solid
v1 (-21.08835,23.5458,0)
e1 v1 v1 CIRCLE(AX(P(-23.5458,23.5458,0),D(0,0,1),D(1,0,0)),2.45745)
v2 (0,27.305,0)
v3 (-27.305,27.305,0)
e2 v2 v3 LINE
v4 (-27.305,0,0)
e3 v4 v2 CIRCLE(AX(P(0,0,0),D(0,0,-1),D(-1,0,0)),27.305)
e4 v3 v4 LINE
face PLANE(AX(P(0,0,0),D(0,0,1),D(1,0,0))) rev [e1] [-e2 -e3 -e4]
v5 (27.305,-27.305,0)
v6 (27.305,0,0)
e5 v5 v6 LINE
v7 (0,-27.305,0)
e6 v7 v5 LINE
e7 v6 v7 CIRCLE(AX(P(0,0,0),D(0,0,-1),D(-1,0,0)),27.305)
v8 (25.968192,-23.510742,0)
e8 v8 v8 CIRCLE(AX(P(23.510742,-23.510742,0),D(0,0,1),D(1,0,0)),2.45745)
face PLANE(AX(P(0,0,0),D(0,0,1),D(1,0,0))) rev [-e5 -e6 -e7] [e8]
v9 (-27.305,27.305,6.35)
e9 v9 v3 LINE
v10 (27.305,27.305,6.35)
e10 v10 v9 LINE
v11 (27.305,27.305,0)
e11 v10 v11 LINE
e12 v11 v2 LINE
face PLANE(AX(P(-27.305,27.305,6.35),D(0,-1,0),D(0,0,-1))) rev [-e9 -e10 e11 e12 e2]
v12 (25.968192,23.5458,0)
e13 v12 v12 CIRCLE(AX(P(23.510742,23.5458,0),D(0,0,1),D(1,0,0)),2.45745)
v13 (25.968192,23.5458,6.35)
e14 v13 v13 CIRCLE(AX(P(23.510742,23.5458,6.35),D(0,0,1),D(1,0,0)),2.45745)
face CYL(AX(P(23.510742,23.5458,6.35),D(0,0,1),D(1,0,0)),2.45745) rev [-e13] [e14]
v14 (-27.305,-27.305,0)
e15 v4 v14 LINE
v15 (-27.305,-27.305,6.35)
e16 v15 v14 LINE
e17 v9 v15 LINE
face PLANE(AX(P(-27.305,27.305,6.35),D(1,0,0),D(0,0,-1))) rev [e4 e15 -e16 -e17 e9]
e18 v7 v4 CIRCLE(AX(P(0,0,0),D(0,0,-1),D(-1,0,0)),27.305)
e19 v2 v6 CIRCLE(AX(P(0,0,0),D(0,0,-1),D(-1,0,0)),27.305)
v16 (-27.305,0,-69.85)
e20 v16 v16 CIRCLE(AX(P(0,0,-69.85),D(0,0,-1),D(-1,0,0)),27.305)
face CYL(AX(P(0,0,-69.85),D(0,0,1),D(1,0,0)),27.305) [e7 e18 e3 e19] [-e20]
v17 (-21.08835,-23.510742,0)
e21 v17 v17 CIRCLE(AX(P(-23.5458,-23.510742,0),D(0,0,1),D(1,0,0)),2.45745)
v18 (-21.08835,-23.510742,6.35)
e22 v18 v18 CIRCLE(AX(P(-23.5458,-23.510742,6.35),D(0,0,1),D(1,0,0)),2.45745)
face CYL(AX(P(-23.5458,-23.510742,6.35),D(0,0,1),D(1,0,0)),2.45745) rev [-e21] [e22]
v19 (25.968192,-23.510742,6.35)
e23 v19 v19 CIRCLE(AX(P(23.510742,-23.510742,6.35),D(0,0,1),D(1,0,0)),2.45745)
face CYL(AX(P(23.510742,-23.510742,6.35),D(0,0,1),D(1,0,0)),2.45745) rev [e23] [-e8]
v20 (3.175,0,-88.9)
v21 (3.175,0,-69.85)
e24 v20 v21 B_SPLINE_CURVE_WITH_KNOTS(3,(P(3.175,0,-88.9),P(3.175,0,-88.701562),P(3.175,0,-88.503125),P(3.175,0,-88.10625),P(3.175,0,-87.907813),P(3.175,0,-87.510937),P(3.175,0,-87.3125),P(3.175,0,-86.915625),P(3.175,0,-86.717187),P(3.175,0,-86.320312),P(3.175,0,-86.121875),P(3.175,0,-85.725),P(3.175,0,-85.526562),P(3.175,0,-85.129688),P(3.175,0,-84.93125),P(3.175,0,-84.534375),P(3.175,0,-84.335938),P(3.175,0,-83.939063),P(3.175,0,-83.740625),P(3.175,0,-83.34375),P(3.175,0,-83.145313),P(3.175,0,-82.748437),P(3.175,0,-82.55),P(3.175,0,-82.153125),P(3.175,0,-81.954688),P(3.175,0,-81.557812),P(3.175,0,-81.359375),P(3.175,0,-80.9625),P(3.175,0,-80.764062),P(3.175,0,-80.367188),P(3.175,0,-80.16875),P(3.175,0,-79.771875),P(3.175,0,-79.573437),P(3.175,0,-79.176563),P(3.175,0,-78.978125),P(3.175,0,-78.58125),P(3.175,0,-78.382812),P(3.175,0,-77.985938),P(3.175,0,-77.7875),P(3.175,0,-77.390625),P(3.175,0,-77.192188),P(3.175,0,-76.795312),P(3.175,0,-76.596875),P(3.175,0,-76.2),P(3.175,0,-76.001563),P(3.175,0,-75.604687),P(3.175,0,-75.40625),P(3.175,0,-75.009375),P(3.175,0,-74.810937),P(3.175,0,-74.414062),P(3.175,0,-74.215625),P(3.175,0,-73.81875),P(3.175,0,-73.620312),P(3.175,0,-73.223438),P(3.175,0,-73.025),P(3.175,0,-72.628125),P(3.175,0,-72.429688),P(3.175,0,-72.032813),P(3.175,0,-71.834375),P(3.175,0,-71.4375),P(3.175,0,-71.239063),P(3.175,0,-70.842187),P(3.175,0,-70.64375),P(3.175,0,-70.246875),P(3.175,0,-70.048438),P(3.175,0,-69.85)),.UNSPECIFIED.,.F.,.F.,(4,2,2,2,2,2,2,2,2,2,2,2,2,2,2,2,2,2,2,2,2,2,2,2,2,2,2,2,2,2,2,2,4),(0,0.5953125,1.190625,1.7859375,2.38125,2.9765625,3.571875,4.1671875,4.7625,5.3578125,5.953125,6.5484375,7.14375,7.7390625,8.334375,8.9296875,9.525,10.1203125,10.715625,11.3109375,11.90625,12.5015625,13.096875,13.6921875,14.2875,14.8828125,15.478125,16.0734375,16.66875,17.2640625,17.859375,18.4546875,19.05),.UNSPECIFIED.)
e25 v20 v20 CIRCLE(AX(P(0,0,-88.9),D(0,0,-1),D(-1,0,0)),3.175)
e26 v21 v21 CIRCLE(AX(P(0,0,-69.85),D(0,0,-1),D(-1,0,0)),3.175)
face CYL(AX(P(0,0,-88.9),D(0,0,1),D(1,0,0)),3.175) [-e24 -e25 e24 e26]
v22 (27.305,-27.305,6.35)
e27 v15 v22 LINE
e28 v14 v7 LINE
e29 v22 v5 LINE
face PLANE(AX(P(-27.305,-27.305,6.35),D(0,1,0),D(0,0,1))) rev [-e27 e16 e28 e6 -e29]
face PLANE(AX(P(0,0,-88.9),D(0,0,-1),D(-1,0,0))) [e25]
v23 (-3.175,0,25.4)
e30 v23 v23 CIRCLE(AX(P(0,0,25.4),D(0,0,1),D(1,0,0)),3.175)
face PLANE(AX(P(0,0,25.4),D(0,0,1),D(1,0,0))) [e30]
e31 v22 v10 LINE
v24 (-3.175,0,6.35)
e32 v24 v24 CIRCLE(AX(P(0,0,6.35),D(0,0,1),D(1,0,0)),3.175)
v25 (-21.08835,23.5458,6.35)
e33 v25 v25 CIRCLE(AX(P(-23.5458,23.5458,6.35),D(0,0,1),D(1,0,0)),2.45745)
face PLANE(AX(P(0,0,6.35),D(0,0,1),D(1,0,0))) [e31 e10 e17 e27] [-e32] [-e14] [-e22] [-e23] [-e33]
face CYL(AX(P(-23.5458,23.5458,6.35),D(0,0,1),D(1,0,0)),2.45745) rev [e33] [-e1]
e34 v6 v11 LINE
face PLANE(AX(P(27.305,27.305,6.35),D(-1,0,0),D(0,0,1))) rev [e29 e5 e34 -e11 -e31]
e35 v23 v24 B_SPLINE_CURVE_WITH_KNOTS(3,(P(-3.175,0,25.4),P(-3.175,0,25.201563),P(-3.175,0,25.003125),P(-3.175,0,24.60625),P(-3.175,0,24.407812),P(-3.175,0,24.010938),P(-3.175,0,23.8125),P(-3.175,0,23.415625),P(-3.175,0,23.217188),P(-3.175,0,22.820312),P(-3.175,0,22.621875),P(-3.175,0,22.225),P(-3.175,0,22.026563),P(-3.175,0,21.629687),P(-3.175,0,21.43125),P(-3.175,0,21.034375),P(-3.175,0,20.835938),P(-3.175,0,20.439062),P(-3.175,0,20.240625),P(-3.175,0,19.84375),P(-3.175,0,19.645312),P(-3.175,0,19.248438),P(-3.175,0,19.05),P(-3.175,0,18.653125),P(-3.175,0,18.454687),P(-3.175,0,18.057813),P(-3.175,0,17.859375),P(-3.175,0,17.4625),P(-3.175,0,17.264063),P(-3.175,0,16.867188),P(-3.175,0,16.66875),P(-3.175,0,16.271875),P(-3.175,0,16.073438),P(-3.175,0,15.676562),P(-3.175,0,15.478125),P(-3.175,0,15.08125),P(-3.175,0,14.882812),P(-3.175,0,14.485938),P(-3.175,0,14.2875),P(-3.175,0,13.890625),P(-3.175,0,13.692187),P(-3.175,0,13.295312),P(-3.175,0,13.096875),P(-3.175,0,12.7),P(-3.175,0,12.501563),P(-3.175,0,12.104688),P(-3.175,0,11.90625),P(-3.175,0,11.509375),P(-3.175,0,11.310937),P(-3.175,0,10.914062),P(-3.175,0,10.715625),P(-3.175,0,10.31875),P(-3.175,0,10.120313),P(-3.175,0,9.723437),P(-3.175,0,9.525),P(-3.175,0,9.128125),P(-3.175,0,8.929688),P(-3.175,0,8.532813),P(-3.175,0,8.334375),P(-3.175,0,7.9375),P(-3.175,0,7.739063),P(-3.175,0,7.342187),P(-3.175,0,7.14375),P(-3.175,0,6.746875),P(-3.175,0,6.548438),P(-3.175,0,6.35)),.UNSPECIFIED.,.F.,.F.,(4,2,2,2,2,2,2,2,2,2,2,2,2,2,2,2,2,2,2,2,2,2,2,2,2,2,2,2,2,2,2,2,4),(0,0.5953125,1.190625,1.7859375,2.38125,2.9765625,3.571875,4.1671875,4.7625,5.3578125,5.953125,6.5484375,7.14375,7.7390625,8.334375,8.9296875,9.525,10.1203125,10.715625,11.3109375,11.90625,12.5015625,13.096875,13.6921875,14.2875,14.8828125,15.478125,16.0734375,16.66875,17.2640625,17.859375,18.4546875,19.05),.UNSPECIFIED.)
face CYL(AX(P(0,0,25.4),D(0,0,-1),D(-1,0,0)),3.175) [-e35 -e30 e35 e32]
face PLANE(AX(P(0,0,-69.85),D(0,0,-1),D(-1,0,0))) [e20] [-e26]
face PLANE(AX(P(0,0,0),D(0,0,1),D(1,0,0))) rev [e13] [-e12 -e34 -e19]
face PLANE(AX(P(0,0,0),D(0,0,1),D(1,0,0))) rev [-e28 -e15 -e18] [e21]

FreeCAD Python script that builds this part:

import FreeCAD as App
import Part
import Sketcher
from FreeCAD import Vector
Q = App.Units.Quantity


def add_polygon(sketch, points):
    """Adds a closed chain of lines whose ends are joined by coincident constraints."""
    first, n = sketch.GeometryCount, len(points)
    for a, b in zip(points, points[1:] + points[:1]):
        sketch.addGeometry(Part.LineSegment(App.Vector(*a, 0), App.Vector(*b, 0)), False)
    for i in range(n):
        sketch.addConstraint(Sketcher.Constraint("Coincident", first + i, 2, first + (i + 1) % n, 1))

doc = App.newDocument("Part")
body = doc.addObject("PartDesign::Body", "Body")

# Sketch on XY plane
sketch1 = body.newObject("Sketcher::SketchObject", "Sketch")
sketch1.AttachmentSupport = (doc.getObject("XY_Plane"), [""])
sketch1.MapMode = "FlatFace"
add_polygon(sketch1, [(-27.305, 27.305), (-27.305, -27.305), (27.305, -27.305), (27.305, 27.305)])  # lines 0-3
sketch1.addConstraint([
    Sketcher.Constraint("Vertical", 0),
    Sketcher.Constraint("Horizontal", 1),
    Sketcher.Constraint("Vertical", 2),
    Sketcher.Constraint("Horizontal", 3),
    Sketcher.Constraint("Symmetric", 0, 2, 2, 2, -1, 1),
    Sketcher.Constraint("Equal", 3, 0),
    Sketcher.Constraint("DistanceX", 1, 1, 1, 2, Q("2.15 in")),
])
pad1 = body.newObject("PartDesign::Pad", "Pad")
pad1.Profile = sketch1
pad1.Length = Q("0.25 in")

# Sketch on XY plane
sketch2 = body.newObject("Sketcher::SketchObject", "Sketch001")
sketch2.AttachmentSupport = (doc.getObject("XY_Plane"), [""])
sketch2.MapMode = "FlatFace"
sketch2.AttachmentOffset = App.Placement(Vector(0, 0, 0.25 * 25.4), App.Rotation())
sketch2.addGeometry([
    Part.Circle(Vector(-23.5458, 23.5458, 0), Vector(0, 0, 1), 2.45745),
    Part.Circle(Vector(23.510742, 23.5458, 0), Vector(0, 0, 1), 2.45745),
    Part.Circle(Vector(23.510742, -23.510742, 0), Vector(0, 0, 1), 2.45745),
    Part.Circle(Vector(-23.5458, -23.510742, 0), Vector(0, 0, 1), 2.45745),
], False)
sketch2.addConstraint([
    Sketcher.Constraint("Equal", 0, 1),
    Sketcher.Constraint("Equal", 1, 2),
    Sketcher.Constraint("Equal", 2, 3),
    Sketcher.Constraint("Horizontal", 0, 3, 1, 3),
    Sketcher.Constraint("Horizontal", 2, 3, 3, 3),
    Sketcher.Constraint("Vertical", 1, 3, 2, 3),
    Sketcher.Constraint("Vertical", 0, 3, 3, 3),
    Sketcher.Constraint("Diameter", 0, Q("0.1935 in")),
    Sketcher.Constraint("DistanceX", 0, 3, -1, 1, Q("0.927 in")),
    Sketcher.Constraint("DistanceY", -1, 1, 0, 3, Q("0.927 in")),
    Sketcher.Constraint("DistanceX", -1, 1, 1, 3, 23.510742),
    Sketcher.Constraint("DistanceY", 2, 3, -1, 1, 23.510742),
])
doc.recompute()
hole = body.newObject("PartDesign::Hole", "Hole")
hole.Profile = sketch2
hole.ThreadType = "None"
hole.Diameter = Q("0.1935 in")
hole.DepthType = "ThroughAll"

# Sketch on XY plane
sketch3 = body.newObject("Sketcher::SketchObject", "Sketch002")
sketch3.AttachmentSupport = (doc.getObject("XY_Plane"), [""])
sketch3.MapMode = "FlatFace"
sketch3.addGeometry(Part.Circle(Vector(0, 0, 0), Vector(0, 0, 1), 27.305), False)
sketch3.addConstraint([
    Sketcher.Constraint("Coincident", 0, 3, -1, 1),
    Sketcher.Constraint("Diameter", 0, Q("2.15 in")),
])
pad2 = body.newObject("PartDesign::Pad", "Pad001")
pad2.Profile = sketch3
pad2.Length = Q("2.75 in")
pad2.Reversed = True

# Sketch on XY plane
sketch4 = body.newObject("Sketcher::SketchObject", "Sketch003")
sketch4.AttachmentSupport = (doc.getObject("XY_Plane"), [""])
sketch4.MapMode = "FlatFace"
sketch4.AttachmentOffset = App.Placement(Vector(0, 0, -2.75 * 25.4), App.Rotation())
sketch4.addGeometry(Part.Circle(Vector(0, 0, 0), Vector(0, 0, 1), 3.175), False)
sketch4.addConstraint([
    Sketcher.Constraint("Coincident", 0, 3, -1, 1),
    Sketcher.Constraint("Diameter", 0, Q("0.25 in")),
])
pad3 = body.newObject("PartDesign::Pad", "Pad002")
pad3.Profile = sketch4
pad3.Length = Q("0.75 in")
pad3.Reversed = True

# Sketch on XY plane
sketch5 = body.newObject("Sketcher::SketchObject", "Sketch004")
sketch5.AttachmentSupport = (doc.getObject("XY_Plane"), [""])
sketch5.MapMode = "FlatFace"
sketch5.AttachmentOffset = App.Placement(Vector(0, 0, 1 * 25.4), App.Rotation())
sketch5.addGeometry(Part.Circle(Vector(0, 0, 0), Vector(0, 0, 1), 3.175), False)
sketch5.addConstraint([
    Sketcher.Constraint("Coincident", 0, 3, -1, 1),
    Sketcher.Constraint("Diameter", 0, Q("0.25 in")),
])
pad4 = body.newObject("PartDesign::Pad", "Pad003")
pad4.Profile = sketch5
pad4.Length = Q("0.75 in")
pad4.Reversed = True

doc.recompute()
